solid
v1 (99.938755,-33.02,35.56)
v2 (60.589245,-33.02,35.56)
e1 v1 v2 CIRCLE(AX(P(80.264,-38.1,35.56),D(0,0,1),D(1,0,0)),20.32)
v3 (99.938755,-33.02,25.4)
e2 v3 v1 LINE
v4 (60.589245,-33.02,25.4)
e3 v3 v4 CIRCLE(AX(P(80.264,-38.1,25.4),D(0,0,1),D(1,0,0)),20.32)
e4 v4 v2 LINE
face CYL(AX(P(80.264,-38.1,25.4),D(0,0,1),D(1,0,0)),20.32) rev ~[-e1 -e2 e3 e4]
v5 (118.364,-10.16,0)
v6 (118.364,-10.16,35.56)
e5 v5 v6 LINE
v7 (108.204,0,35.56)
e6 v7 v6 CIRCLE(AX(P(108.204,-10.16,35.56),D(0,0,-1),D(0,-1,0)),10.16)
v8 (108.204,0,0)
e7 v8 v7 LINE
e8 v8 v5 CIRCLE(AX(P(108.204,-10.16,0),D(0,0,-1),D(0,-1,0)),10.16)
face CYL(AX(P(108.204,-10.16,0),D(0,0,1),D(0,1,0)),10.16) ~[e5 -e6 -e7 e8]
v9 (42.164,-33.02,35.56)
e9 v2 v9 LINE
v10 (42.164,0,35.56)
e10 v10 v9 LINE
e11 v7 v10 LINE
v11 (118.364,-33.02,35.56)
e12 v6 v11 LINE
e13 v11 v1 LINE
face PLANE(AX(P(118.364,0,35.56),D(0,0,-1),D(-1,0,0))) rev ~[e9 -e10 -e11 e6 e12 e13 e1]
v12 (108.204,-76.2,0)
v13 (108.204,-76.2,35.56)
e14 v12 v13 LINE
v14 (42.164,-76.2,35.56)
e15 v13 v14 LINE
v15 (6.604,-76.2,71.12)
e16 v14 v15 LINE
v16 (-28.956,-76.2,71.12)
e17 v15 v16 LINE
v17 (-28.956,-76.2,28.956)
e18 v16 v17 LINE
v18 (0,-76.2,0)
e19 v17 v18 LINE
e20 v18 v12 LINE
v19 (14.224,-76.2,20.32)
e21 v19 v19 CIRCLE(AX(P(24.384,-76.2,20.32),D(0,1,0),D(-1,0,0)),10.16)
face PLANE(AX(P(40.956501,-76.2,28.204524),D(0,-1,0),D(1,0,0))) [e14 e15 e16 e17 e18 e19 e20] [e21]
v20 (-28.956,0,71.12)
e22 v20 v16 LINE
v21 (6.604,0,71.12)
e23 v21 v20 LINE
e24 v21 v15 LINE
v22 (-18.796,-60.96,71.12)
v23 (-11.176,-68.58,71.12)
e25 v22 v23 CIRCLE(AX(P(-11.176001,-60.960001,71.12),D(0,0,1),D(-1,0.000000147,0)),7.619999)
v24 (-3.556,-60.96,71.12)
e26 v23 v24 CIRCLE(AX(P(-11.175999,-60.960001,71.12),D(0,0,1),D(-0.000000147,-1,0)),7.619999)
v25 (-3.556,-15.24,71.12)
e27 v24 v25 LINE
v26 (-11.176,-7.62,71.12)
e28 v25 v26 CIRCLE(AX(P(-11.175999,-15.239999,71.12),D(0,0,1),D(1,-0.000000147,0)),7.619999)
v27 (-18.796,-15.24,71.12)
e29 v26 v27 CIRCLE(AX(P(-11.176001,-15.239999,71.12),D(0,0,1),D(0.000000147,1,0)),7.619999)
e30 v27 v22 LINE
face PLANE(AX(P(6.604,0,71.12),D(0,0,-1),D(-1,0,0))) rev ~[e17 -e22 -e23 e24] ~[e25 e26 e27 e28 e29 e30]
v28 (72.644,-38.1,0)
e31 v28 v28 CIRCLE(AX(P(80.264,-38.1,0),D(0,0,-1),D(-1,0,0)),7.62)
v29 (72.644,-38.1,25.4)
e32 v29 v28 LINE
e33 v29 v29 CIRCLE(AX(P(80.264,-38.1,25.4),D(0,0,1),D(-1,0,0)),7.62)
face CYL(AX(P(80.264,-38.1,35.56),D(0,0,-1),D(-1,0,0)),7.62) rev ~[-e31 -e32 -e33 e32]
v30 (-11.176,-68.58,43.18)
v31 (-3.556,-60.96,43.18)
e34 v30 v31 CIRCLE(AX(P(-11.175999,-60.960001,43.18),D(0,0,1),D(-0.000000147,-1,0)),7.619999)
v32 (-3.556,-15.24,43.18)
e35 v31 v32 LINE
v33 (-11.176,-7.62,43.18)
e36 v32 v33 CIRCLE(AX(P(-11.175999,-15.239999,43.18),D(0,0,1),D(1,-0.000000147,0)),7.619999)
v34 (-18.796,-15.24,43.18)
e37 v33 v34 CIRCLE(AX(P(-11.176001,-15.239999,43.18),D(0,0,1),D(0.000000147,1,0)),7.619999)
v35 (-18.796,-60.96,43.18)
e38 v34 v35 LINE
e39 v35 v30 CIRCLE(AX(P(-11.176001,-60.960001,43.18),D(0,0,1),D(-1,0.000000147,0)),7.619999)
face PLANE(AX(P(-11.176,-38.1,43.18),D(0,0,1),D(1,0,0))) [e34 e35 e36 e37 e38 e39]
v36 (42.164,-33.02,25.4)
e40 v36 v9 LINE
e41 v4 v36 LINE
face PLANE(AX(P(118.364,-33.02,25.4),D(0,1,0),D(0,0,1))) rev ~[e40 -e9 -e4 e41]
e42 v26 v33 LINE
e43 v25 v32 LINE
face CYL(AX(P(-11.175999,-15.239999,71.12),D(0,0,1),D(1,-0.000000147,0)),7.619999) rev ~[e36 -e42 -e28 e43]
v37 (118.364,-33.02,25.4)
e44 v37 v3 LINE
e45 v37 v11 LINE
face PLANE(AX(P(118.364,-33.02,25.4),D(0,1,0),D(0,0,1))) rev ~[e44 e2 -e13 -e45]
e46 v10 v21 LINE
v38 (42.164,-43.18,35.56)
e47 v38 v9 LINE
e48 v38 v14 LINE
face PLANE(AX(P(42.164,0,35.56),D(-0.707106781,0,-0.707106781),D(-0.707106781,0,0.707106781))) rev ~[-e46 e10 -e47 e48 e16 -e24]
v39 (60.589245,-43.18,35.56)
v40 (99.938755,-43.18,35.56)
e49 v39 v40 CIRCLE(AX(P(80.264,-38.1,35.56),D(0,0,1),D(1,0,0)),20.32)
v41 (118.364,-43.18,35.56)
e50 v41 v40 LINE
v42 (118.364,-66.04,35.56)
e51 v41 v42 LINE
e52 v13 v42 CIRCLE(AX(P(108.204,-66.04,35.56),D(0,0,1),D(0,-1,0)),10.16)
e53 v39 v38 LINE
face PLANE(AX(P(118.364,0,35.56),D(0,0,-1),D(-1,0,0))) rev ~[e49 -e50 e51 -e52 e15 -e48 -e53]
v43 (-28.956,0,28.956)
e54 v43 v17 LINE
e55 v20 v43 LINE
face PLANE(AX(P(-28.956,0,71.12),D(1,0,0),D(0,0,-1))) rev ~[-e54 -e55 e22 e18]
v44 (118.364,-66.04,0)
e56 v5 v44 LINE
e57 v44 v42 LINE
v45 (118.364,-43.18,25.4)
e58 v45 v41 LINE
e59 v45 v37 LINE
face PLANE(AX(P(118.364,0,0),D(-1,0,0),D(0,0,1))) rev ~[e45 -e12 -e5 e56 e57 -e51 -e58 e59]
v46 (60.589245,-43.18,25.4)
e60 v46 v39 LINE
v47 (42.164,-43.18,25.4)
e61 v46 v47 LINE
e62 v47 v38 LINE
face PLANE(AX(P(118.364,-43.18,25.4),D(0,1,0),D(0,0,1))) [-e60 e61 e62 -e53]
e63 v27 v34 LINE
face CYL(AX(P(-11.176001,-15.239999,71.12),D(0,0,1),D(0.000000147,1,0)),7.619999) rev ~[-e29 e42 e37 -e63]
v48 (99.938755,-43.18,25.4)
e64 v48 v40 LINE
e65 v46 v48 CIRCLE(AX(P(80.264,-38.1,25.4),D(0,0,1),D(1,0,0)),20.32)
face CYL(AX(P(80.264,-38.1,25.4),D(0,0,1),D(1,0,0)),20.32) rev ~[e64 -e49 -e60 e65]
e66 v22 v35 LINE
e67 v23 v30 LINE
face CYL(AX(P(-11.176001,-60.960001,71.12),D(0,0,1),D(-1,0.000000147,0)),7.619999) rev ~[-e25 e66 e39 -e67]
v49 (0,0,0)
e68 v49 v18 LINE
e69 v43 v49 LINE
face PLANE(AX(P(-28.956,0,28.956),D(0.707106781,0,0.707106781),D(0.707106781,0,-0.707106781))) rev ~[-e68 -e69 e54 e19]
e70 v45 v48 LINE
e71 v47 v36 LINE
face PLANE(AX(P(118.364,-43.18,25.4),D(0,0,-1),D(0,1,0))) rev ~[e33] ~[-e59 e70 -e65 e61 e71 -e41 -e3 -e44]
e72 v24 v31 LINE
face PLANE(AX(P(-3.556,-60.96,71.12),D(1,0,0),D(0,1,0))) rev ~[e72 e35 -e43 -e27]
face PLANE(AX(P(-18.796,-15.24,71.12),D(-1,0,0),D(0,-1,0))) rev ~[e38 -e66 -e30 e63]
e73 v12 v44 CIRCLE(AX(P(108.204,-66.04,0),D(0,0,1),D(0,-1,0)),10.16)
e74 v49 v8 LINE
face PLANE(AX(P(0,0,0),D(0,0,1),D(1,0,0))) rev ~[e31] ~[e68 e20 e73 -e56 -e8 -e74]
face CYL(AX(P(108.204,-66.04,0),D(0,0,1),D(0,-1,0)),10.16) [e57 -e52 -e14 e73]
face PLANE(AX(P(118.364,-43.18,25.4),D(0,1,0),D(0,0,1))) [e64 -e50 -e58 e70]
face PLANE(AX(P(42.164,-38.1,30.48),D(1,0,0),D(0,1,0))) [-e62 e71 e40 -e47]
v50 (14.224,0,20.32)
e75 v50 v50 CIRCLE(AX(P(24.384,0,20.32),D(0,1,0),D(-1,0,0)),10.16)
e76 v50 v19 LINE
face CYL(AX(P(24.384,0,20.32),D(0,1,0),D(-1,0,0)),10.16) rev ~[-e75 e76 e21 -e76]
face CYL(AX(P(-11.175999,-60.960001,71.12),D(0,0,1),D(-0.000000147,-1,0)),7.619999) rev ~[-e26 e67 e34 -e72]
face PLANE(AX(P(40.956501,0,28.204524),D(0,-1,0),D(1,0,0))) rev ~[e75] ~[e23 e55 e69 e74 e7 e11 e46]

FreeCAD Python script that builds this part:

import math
import FreeCAD as App
import Part
import Sketcher
from FreeCAD import Vector
Q = App.Units.Quantity


def edges_at(feature, points):
    """Names of the edges that pass closest to the given points."""
    edges = feature.Shape.Edges
    near = lambda p: min(range(len(edges)), key=lambda i: edges[i].distToShape(Part.Vertex(*p))[0])
    return sorted({f"Edge{near(p) + 1}" for p in points})


def add_polygon(sketch, points):
    """Adds a closed chain of lines whose ends are joined by coincident constraints."""
    first, n = sketch.GeometryCount, len(points)
    for a, b in zip(points, points[1:] + points[:1]):
        sketch.addGeometry(Part.LineSegment(App.Vector(*a, 0), App.Vector(*b, 0)), False)
    for i in range(n):
        sketch.addConstraint(Sketcher.Constraint("Coincident", first + i, 2, first + (i + 1) % n, 1))

doc = App.newDocument("Part")
params = doc.addObject("Spreadsheet::Sheet", "Params")
for row, (alias, value) in enumerate([
    ("sketch1_width", "3 in"),
    ("sketch1_width2", "1.4 in"),
    ("sketch1_width3", "4.66 in"),
    ("pad1_length", "3 in"),
    ("sketch2_radius", "0.3 in"),
    ("sketch2_height", "1.8 in"),
    ("pocket1_length", "1.1 in"),
    ("sketch3_diameter", "0.6 in"),
    ("hole_diameter", "0.6 in"),
    ("hole_cbore_diameter", "1.6 in"),
    ("hole_cbore_depth", "0.4 in"),
    ("sketch4_width", "0.4 in"),
    ("pocket2_length", "3 in"),
    ("sketch5_diameter", "0.8 in"),
    ("fillet_radius", "0.4 in"),
], start=1):
    params.set(f"A{row}", alias)
    params.set(f"B{row}", "=" + value)
    params.setAlias(f"B{row}", alias)

body = doc.addObject("PartDesign::Body", "Body")

sketch1 = body.newObject("Sketcher::SketchObject", "Sketch")
sketch1.AttachmentSupport = (doc.getObject("XZ_Plane"), [""])
sketch1.MapMode = "FlatFace"
add_polygon(sketch1, [(-29, 29), (0, 0), (118, 0), (118, 36), (42, 36), (7, 71), (-29, 71)])
sketch1.addConstraint(Sketcher.Constraint("Horizontal", 1))
sketch1.addConstraint(Sketcher.Constraint("Vertical", 2))
sketch1.addConstraint(Sketcher.Constraint("Horizontal", 3))
sketch1.addConstraint(Sketcher.Constraint("Horizontal", 5))
sketch1.addConstraint(Sketcher.Constraint("Vertical", 6))
sketch1.addConstraint(Sketcher.Constraint("Coincident", 0, 2, -1, 1))
sketch1.addConstraint(Sketcher.Constraint("Parallel", 0, 4))
sketch1.addConstraint(Sketcher.Constraint("Equal", 5, 2))
sketch1.addConstraint(Sketcher.Constraint("DistanceX", 3, 2, 3, 1, Q("3 in")))
sketch1.addConstraint(Sketcher.Constraint("DistanceX", 5, 2, 5, 1, Q("1.4 in")))
sketch1.addConstraint(Sketcher.Constraint("Angle", 0, Q("-45 deg")))
sketch1.addConstraint(Sketcher.Constraint("DistanceX", 1, 1, 1, 2, Q("4.66 in")))
sketch1.addConstraint(Sketcher.Constraint("DistanceY", -1, 1, 4, 2, Q("2.8 in")))
sketch1.setExpression("Constraints[15]", "Params.sketch1_width")
sketch1.setExpression("Constraints[16]", "Params.sketch1_width2")
sketch1.setExpression("Constraints[18]", "Params.sketch1_width3")
pad1 = body.newObject("PartDesign::Pad", "Pad")
pad1.Profile = sketch1
pad1.setExpression("Length", "Params.pad1_length")

sketch2 = body.newObject("Sketcher::SketchObject", "Sketch001")
sketch2.AttachmentSupport = (doc.getObject("XY_Plane"), [""])
sketch2.MapMode = "FlatFace"
sketch2.AttachmentOffset = App.Placement(Vector(0, 0, 2.8 * 25.4), App.Rotation())
sketch2.addGeometry(Part.ArcOfCircle(Part.Circle(Vector(-11, -15, 0), Vector(0, 0, 1), 8), math.radians(90), math.radians(180)), False)
sketch2.addGeometry(Part.LineSegment(Vector(-19, -15, 0), Vector(-19, -61, 0)), False)
sketch2.addGeometry(Part.ArcOfCircle(Part.Circle(Vector(-11, -61, 0), Vector(0, 0, 1), 8), math.radians(180), math.radians(270)), False)
sketch2.addGeometry(Part.ArcOfCircle(Part.Circle(Vector(-11, -61, 0), Vector(0, 0, 1), 8), math.radians(-90), math.radians(0)), False)
sketch2.addGeometry(Part.LineSegment(Vector(-4, -61, 0), Vector(-4, -15, 0)), False)
sketch2.addGeometry(Part.ArcOfCircle(Part.Circle(Vector(-11, -15, 0), Vector(0, 0, 1), 8), math.radians(0), math.radians(90)), False)
sketch2.addConstraint(Sketcher.Constraint("Tangent", 0, 2, 1, 1))
sketch2.addConstraint(Sketcher.Constraint("Tangent", 1, 2, 2, 1))
sketch2.addConstraint(Sketcher.Constraint("Tangent", 2, 2, 3, 1))
sketch2.addConstraint(Sketcher.Constraint("Tangent", 3, 2, 4, 1))
sketch2.addConstraint(Sketcher.Constraint("Tangent", 4, 2, 5, 1))
sketch2.addConstraint(Sketcher.Constraint("Tangent", 5, 2, 0, 1))
sketch2.addConstraint(Sketcher.Constraint("Vertical", 1))
sketch2.addConstraint(Sketcher.Constraint("Vertical", 4))
sketch2.addConstraint(Sketcher.Constraint("Equal", 0, 2))
sketch2.addConstraint(Sketcher.Constraint("Equal", 2, 3))
sketch2.addConstraint(Sketcher.Constraint("Vertical", 5, 3, 2, 2))
sketch2.addConstraint(Sketcher.Constraint("Vertical", 2, 2, 5, 2))
sketch2.addConstraint(Sketcher.Constraint("Radius", 0, Q("0.3 in")))
sketch2.addConstraint(Sketcher.Constraint("DistanceY", 1, 2, 1, 1, Q("1.8 in")))
sketch2.addConstraint(Sketcher.Constraint("DistanceY", 0, 3, -1, 1, Q("0.6 in")))
sketch2.addConstraint(Sketcher.Constraint("DistanceX", 0, 3, -1, 1, Q("0.44 in")))
sketch2.setExpression("Constraints[12]", "Params.sketch2_radius")
sketch2.setExpression("Constraints[13]", "Params.sketch2_height")
pocket1 = body.newObject("PartDesign::Pocket", "Pocket")
pocket1.Profile = sketch2
pocket1.setExpression("Length", "Params.pocket1_length")

sketch3 = body.newObject("Sketcher::SketchObject", "Sketch002")
sketch3.AttachmentSupport = (doc.getObject("XY_Plane"), [""])
sketch3.MapMode = "FlatFace"
sketch3.AttachmentOffset = App.Placement(Vector(0, 0, 1.4 * 25.4), App.Rotation())
sketch3.addGeometry(Part.Circle(Vector(80, -38, 0), Vector(0, 0, 1), 8), False)
sketch3.addConstraint(Sketcher.Constraint("Diameter", 0, Q("0.6 in")))
sketch3.addConstraint(Sketcher.Constraint("DistanceY", 0, 3, -1, 1, Q("1.5 in")))
sketch3.addConstraint(Sketcher.Constraint("DistanceX", -1, 1, 0, 3, Q("3.16 in")))
sketch3.setExpression("Constraints[0]", "Params.sketch3_diameter")
doc.recompute()
hole = body.newObject("PartDesign::Hole", "Hole")
hole.Profile = sketch3
hole.ThreadType = "None"
hole.setExpression("Diameter", "Params.hole_diameter")
hole.DepthType = "ThroughAll"
hole.HoleCutType = "Counterbore"
hole.setExpression("HoleCutDiameter", "Params.hole_cbore_diameter")
hole.setExpression("HoleCutDepth", "Params.hole_cbore_depth")

sketch4 = body.newObject("Sketcher::SketchObject", "Sketch003")
sketch4.AttachmentSupport = (doc.getObject("YZ_Plane"), [""])
sketch4.MapMode = "FlatFace"
sketch4.AttachmentOffset = App.Placement(Vector(0, 0, 4.66 * 25.4), App.Rotation())
add_polygon(sketch4, [(-43, 36), (-43, 25), (-33, 25), (-33, 36)])
sketch4.addConstraint(Sketcher.Constraint("Vertical", 0))
sketch4.addConstraint(Sketcher.Constraint("Horizontal", 1))
sketch4.addConstraint(Sketcher.Constraint("Vertical", 2))
sketch4.addConstraint(Sketcher.Constraint("Horizontal", 3))
sketch4.addConstraint(Sketcher.Constraint("Equal", 3, 0))
sketch4.addConstraint(Sketcher.Constraint("DistanceX", 1, 1, 1, 2, Q("0.4 in")))
sketch4.addConstraint(Sketcher.Constraint("DistanceY", -1, 1, 0, 2, Q("1 in")))
sketch4.addConstraint(Sketcher.Constraint("DistanceX", 0, 2, -1, 1, Q("1.7 in")))
sketch4.setExpression("Constraints[9]", "Params.sketch4_width")
pocket2 = body.newObject("PartDesign::Pocket", "Pocket001")
pocket2.Profile = sketch4
pocket2.setExpression("Length", "Params.pocket2_length")

sketch5 = body.newObject("Sketcher::SketchObject", "Sketch004")
sketch5.AttachmentSupport = (doc.getObject("XZ_Plane"), [""])
sketch5.MapMode = "FlatFace"
sketch5.addGeometry(Part.Circle(Vector(24, 20, 0), Vector(0, 0, 1), 10), False)
sketch5.addConstraint(Sketcher.Constraint("Diameter", 0, Q("0.8 in")))
sketch5.addConstraint(Sketcher.Constraint("DistanceY", -1, 1, 0, 3, Q("0.8 in")))
sketch5.addConstraint(Sketcher.Constraint("DistanceX", -1, 1, 0, 3, Q("0.96 in")))
sketch5.setExpression("Constraints[0]", "Params.sketch5_diameter")
pocket3 = body.newObject("PartDesign::Pocket", "Pocket002")
pocket3.Profile = sketch5
pocket3.Type = "ThroughAll"
pocket3.Reversed = True
doc.recompute()

fillet = body.newObject("PartDesign::Fillet", "Fillet")
fillet.Base = (pocket3, edges_at(pocket3, [(118.364, -76.2, 17.78), (118.364, 0, 17.78)]))
fillet.setExpression("Radius", "Params.fillet_radius")

doc.recompute()
